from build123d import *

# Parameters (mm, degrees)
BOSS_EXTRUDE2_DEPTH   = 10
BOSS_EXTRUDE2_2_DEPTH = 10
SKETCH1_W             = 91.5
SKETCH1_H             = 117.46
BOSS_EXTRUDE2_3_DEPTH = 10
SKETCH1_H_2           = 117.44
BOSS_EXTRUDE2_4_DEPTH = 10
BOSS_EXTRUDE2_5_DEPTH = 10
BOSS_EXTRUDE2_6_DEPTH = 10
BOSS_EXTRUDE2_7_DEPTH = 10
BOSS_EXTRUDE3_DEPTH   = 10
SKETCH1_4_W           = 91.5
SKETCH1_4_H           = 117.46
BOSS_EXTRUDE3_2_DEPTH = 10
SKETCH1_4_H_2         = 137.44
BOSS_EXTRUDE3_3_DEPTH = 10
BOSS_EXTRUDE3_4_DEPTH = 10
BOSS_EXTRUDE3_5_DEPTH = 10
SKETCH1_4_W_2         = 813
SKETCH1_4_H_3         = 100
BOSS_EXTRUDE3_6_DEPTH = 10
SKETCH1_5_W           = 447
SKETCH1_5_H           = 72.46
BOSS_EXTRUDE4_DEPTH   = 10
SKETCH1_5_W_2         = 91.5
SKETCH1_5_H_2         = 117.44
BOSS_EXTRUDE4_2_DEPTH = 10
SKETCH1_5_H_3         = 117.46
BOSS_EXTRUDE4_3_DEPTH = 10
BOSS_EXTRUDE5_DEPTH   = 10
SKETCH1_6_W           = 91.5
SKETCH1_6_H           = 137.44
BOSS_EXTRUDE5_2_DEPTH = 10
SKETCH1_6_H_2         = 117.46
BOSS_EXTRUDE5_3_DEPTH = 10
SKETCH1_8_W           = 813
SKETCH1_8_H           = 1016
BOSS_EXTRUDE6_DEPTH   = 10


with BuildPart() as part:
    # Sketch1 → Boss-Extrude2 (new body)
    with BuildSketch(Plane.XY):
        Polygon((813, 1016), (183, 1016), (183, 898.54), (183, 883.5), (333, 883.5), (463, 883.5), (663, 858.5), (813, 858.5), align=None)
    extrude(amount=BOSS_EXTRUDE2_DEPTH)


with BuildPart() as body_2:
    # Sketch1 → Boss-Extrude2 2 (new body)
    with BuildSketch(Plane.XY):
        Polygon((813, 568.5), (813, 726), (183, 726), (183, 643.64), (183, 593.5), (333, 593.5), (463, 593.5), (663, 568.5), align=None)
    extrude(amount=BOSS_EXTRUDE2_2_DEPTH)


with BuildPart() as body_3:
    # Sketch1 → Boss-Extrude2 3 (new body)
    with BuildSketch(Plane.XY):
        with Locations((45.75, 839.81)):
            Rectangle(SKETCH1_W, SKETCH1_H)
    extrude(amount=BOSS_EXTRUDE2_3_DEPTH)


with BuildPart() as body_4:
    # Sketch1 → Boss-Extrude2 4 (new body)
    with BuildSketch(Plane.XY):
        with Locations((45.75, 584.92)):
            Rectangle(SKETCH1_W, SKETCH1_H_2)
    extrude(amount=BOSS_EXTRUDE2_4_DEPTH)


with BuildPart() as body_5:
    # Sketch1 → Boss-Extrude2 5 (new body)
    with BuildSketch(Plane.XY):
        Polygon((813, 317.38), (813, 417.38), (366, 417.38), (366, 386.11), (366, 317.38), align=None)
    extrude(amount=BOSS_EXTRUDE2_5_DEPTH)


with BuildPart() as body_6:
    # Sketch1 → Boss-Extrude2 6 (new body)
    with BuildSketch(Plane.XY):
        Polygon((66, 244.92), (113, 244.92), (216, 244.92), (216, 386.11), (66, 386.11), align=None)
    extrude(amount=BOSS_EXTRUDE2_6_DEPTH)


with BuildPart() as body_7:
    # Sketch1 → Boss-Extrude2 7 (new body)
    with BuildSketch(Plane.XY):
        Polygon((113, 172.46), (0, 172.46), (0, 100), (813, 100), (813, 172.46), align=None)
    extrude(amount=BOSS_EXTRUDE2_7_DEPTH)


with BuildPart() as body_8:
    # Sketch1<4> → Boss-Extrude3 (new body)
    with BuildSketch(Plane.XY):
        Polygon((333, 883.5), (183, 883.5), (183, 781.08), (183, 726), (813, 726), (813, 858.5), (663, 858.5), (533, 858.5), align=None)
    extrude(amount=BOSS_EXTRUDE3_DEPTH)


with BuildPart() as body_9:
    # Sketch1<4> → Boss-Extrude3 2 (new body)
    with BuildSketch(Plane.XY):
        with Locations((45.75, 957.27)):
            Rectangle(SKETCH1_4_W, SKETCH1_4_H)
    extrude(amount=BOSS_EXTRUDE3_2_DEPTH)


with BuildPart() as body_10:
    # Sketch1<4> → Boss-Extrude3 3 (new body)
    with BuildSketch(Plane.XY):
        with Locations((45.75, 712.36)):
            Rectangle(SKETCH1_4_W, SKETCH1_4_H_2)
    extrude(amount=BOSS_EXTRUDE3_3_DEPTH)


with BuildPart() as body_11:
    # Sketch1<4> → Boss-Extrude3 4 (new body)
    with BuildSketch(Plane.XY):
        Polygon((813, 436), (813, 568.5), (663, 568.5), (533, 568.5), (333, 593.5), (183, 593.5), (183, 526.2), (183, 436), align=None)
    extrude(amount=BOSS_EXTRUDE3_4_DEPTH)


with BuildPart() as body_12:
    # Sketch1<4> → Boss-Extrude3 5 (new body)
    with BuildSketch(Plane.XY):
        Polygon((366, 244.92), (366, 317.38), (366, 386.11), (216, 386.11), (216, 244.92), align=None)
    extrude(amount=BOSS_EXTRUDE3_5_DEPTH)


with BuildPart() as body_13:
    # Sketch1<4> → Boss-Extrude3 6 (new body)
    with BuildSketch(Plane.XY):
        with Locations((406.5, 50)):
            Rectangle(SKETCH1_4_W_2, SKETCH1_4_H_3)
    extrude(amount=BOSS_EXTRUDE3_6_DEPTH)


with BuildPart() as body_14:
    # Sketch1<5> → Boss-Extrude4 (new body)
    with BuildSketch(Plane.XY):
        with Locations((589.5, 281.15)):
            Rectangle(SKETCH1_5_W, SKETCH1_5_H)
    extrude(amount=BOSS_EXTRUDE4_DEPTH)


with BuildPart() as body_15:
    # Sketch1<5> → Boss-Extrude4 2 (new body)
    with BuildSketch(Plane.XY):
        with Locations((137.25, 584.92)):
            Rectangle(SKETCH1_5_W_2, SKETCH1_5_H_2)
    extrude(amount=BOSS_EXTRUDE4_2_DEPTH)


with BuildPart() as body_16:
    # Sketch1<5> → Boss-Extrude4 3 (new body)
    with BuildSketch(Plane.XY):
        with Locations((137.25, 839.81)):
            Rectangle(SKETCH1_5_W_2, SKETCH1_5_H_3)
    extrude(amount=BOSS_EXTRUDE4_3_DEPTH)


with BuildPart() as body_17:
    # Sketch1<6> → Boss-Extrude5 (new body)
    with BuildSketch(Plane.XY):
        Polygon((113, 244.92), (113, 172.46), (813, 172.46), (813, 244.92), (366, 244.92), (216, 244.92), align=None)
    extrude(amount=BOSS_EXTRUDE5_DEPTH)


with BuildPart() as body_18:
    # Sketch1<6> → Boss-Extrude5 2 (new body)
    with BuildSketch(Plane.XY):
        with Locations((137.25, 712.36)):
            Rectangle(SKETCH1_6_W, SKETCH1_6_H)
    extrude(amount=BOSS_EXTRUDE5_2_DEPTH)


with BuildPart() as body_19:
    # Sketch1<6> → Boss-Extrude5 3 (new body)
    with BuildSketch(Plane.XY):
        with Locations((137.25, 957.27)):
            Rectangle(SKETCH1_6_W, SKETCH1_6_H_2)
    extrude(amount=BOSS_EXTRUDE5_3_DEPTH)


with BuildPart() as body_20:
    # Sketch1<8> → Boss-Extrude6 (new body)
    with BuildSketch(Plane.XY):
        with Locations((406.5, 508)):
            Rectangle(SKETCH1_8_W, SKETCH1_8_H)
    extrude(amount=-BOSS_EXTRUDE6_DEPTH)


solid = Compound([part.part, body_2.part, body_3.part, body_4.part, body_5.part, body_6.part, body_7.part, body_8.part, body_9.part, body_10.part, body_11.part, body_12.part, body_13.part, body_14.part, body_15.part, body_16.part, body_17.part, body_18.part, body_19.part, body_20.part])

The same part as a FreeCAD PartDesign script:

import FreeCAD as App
import Part
import Sketcher

V = App.Vector
Q = App.Units.Quantity

doc = App.newDocument("Part")
params = doc.addObject("Spreadsheet::Sheet", "Params")
for row, (alias, value) in enumerate([
    ("sketch1_width", "630 mm"),
    ("sketch1_width2", "280 mm"),
    ("sketch1_width3", "150 mm"),
    ("sketch1_height", "132.5 mm"),
    ("sketch1_height2", "157.5 mm"),
    ("pad1_length", "10 mm"),
    ("sketch2_width", "630 mm"),
    ("sketch2_width2", "280 mm"),
    ("sketch2_width3", "150 mm"),
    ("sketch2_height", "157.5 mm"),
    ("sketch2_height2", "132.5 mm"),
    ("pad2_length", "10 mm"),
    ("sketch3_width", "91.5 mm"),
    ("sketch3_height", "117.46 mm"),
    ("pad3_length", "10 mm"),
    ("sketch4_width", "91.5 mm"),
    ("sketch4_height", "117.44 mm"),
    ("pad4_length", "10 mm"),
    ("sketch5_width", "447 mm"),
    ("sketch5_height", "100 mm"),
    ("pad5_length", "10 mm"),
    ("sketch6_width", "150 mm"),
    ("sketch6_height", "141.19 mm"),
    ("pad6_length", "10 mm"),
    ("sketch7_width", "813 mm"),
    ("sketch7_height", "72.46 mm"),
    ("pad7_length", "10 mm"),
    ("sketch8_width", "150 mm"),
    ("sketch8_width2", "630 mm"),
    ("sketch8_width3", "280 mm"),
    ("sketch8_height", "157.5 mm"),
    ("sketch8_height2", "132.5 mm"),
    ("pad8_length", "10 mm"),
    ("sketch9_width", "91.5 mm"),
    ("sketch9_height", "117.46 mm"),
    ("pad9_length", "10 mm"),
    ("sketch10_width", "91.5 mm"),
    ("sketch10_height", "137.44 mm"),
    ("pad10_length", "10 mm"),
    ("sketch11_width", "280 mm"),
    ("sketch11_width2", "150 mm"),
    ("sketch11_width3", "630 mm"),
    ("sketch11_height", "132.5 mm"),
    ("sketch11_height2", "157.5 mm"),
    ("pad11_length", "10 mm"),
    ("sketch12_width", "150 mm"),
    ("sketch12_height", "141.19 mm"),
    ("pad12_length", "10 mm"),
    ("sketch13_width", "813 mm"),
    ("sketch13_height", "100 mm"),
    ("pad13_length", "10 mm"),
    ("sketch14_width", "447 mm"),
    ("sketch14_height", "72.46 mm"),
    ("pad14_length", "10 mm"),
    ("sketch15_width", "91.5 mm"),
    ("sketch15_height", "117.44 mm"),
    ("pad15_length", "10 mm"),
    ("sketch16_width", "91.5 mm"),
    ("sketch16_height", "117.46 mm"),
    ("pad16_length", "10 mm"),
    ("sketch17_width", "700 mm"),
    ("sketch17_height", "72.46 mm"),
    ("pad17_length", "10 mm"),
    ("sketch18_width", "91.5 mm"),
    ("sketch18_height", "137.44 mm"),
    ("pad18_length", "10 mm"),
    ("sketch19_width", "91.5 mm"),
    ("sketch19_height", "117.46 mm"),
    ("pad19_length", "10 mm"),
    ("sketch20_width", "813 mm"),
    ("sketch20_height", "1016 mm"),
    ("pad20_length", "10 mm"),
], start=1):
    params.set(f"A{row}", alias)
    params.set(f"B{row}", "=" + value)
    params.setAlias(f"B{row}", alias)

body = doc.addObject("PartDesign::Body", "Body")

sketch1 = doc.addObject("Sketcher::SketchObject", "Sketch")
body.addObject(sketch1)
sketch1.AttachmentSupport = (doc.XY_Plane, [""])
sketch1.MapMode = "FlatFace"
sketch1.addGeometry(Part.LineSegment(V(813, 1016, 0), V(183, 1016, 0)), False)
sketch1.addGeometry(Part.LineSegment(V(183, 1016, 0), V(183, 884, 0)), False)
sketch1.addGeometry(Part.LineSegment(V(183, 884, 0), V(463, 884, 0)), False)
sketch1.addGeometry(Part.LineSegment(V(463, 884, 0), V(663, 858, 0)), False)
sketch1.addGeometry(Part.LineSegment(V(663, 858, 0), V(813, 858, 0)), False)
sketch1.addGeometry(Part.LineSegment(V(813, 858, 0), V(813, 1016, 0)), False)
sketch1.addConstraint(Sketcher.Constraint("Coincident", 0, 2, 1, 1))
sketch1.addConstraint(Sketcher.Constraint("Coincident", 1, 2, 2, 1))
sketch1.addConstraint(Sketcher.Constraint("Coincident", 2, 2, 3, 1))
sketch1.addConstraint(Sketcher.Constraint("Coincident", 3, 2, 4, 1))
sketch1.addConstraint(Sketcher.Constraint("Coincident", 4, 2, 5, 1))
sketch1.addConstraint(Sketcher.Constraint("Coincident", 5, 2, 0, 1))
sketch1.addConstraint(Sketcher.Constraint("Horizontal", 0))
sketch1.addConstraint(Sketcher.Constraint("Vertical", 1))
sketch1.addConstraint(Sketcher.Constraint("Horizontal", 2))
sketch1.addConstraint(Sketcher.Constraint("Horizontal", 4))
sketch1.addConstraint(Sketcher.Constraint("Vertical", 5))
sketch1.addConstraint(Sketcher.Constraint("DistanceX", 0, 2, 0, 1, Q("630 mm")))
sketch1.addConstraint(Sketcher.Constraint("DistanceX", 2, 1, 2, 2, Q("280 mm")))
sketch1.addConstraint(Sketcher.Constraint("DistanceX", 4, 1, 4, 2, Q("150 mm")))
sketch1.addConstraint(Sketcher.Constraint("DistanceY", 1, 2, 1, 1, Q("132.5 mm")))
sketch1.addConstraint(Sketcher.Constraint("DistanceY", 5, 1, 5, 2, Q("157.5 mm")))
sketch1.addConstraint(Sketcher.Constraint("DistanceX", -1, 1, 0, 2, Q("183 mm")))
sketch1.addConstraint(Sketcher.Constraint("DistanceY", -1, 1, 0, 2, Q("1016 mm")))
sketch1.setExpression("Constraints[11]", "Params.sketch1_width")
sketch1.setExpression("Constraints[12]", "Params.sketch1_width2")
sketch1.setExpression("Constraints[13]", "Params.sketch1_width3")
sketch1.setExpression("Constraints[14]", "Params.sketch1_height")
sketch1.setExpression("Constraints[15]", "Params.sketch1_height2")
pad1 = doc.addObject("PartDesign::Pad", "Pad")
body.addObject(pad1)
pad1.Profile = sketch1
pad1.setExpression("Length", "Params.pad1_length")
body2 = doc.addObject("PartDesign::Body", "Body001")

sketch2 = doc.addObject("Sketcher::SketchObject", "Sketch001")
body2.addObject(sketch2)
sketch2.AttachmentSupport = (doc.getObject("XY_Plane001"), [""])
sketch2.MapMode = "FlatFace"
sketch2.addGeometry(Part.LineSegment(V(813, 568, 0), V(813, 726, 0)), False)
sketch2.addGeometry(Part.LineSegment(V(813, 726, 0), V(183, 726, 0)), False)
sketch2.addGeometry(Part.LineSegment(V(183, 726, 0), V(183, 594, 0)), False)
sketch2.addGeometry(Part.LineSegment(V(183, 594, 0), V(463, 594, 0)), False)
sketch2.addGeometry(Part.LineSegment(V(463, 594, 0), V(663, 568, 0)), False)
sketch2.addGeometry(Part.LineSegment(V(663, 568, 0), V(813, 568, 0)), False)
sketch2.addConstraint(Sketcher.Constraint("Coincident", 0, 2, 1, 1))
sketch2.addConstraint(Sketcher.Constraint("Coincident", 1, 2, 2, 1))
sketch2.addConstraint(Sketcher.Constraint("Coincident", 2, 2, 3, 1))
sketch2.addConstraint(Sketcher.Constraint("Coincident", 3, 2, 4, 1))
sketch2.addConstraint(Sketcher.Constraint("Coincident", 4, 2, 5, 1))
sketch2.addConstraint(Sketcher.Constraint("Coincident", 5, 2, 0, 1))
sketch2.addConstraint(Sketcher.Constraint("Vertical", 0))
sketch2.addConstraint(Sketcher.Constraint("Horizontal", 1))
sketch2.addConstraint(Sketcher.Constraint("Vertical", 2))
sketch2.addConstraint(Sketcher.Constraint("Horizontal", 3))
sketch2.addConstraint(Sketcher.Constraint("Horizontal", 5))
sketch2.addConstraint(Sketcher.Constraint("DistanceX", 1, 2, 1, 1, Q("630 mm")))
sketch2.addConstraint(Sketcher.Constraint("DistanceX", 3, 1, 3, 2, Q("280 mm")))
sketch2.addConstraint(Sketcher.Constraint("DistanceX", 5, 1, 5, 2, Q("150 mm")))
sketch2.addConstraint(Sketcher.Constraint("DistanceY", 0, 1, 0, 2, Q("157.5 mm")))
sketch2.addConstraint(Sketcher.Constraint("DistanceY", 2, 2, 2, 1, Q("132.5 mm")))
sketch2.addConstraint(Sketcher.Constraint("DistanceX", -1, 1, 0, 2, Q("813 mm")))
sketch2.addConstraint(Sketcher.Constraint("DistanceY", -1, 1, 0, 2, Q("726 mm")))
sketch2.setExpression("Constraints[11]", "Params.sketch2_width")
sketch2.setExpression("Constraints[12]", "Params.sketch2_width2")
sketch2.setExpression("Constraints[13]", "Params.sketch2_width3")
sketch2.setExpression("Constraints[14]", "Params.sketch2_height")
sketch2.setExpression("Constraints[15]", "Params.sketch2_height2")
pad2 = doc.addObject("PartDesign::Pad", "Pad001")
body2.addObject(pad2)
pad2.Profile = sketch2
pad2.setExpression("Length", "Params.pad2_length")
body3 = doc.addObject("PartDesign::Body", "Body002")

sketch3 = doc.addObject("Sketcher::SketchObject", "Sketch002")
body3.addObject(sketch3)
sketch3.AttachmentSupport = (doc.getObject("XY_Plane002"), [""])
sketch3.MapMode = "FlatFace"
sketch3.addGeometry(Part.LineSegment(V(0, 899, 0), V(0, 781, 0)), False)
sketch3.addGeometry(Part.LineSegment(V(0, 781, 0), V(92, 781, 0)), False)
sketch3.addGeometry(Part.LineSegment(V(92, 781, 0), V(92, 899, 0)), False)
sketch3.addGeometry(Part.LineSegment(V(92, 899, 0), V(0, 899, 0)), False)
sketch3.addConstraint(Sketcher.Constraint("Coincident", 0, 2, 1, 1))
sketch3.addConstraint(Sketcher.Constraint("Coincident", 1, 2, 2, 1))
sketch3.addConstraint(Sketcher.Constraint("Coincident", 2, 2, 3, 1))
sketch3.addConstraint(Sketcher.Constraint("Coincident", 3, 2, 0, 1))
sketch3.addConstraint(Sketcher.Constraint("Vertical", 0))
sketch3.addConstraint(Sketcher.Constraint("Horizontal", 1))
sketch3.addConstraint(Sketcher.Constraint("Vertical", 2))
sketch3.addConstraint(Sketcher.Constraint("Horizontal", 3))
sketch3.addConstraint(Sketcher.Constraint("PointOnObject", 0, 2, -2))
sketch3.addConstraint(Sketcher.Constraint("DistanceX", 1, 1, 1, 2, Q("91.5 mm")))
sketch3.addConstraint(Sketcher.Constraint("DistanceY", 0, 2, 0, 1, Q("117.46 mm")))
sketch3.addConstraint(Sketcher.Constraint("DistanceY", -1, 1, 0, 2, Q("781.08 mm")))
sketch3.setExpression("Constraints[9]", "Params.sketch3_width")
sketch3.setExpression("Constraints[10]", "Params.sketch3_height")
pad3 = doc.addObject("PartDesign::Pad", "Pad002")
body3.addObject(pad3)
pad3.Profile = sketch3
pad3.setExpression("Length", "Params.pad3_length")
body4 = doc.addObject("PartDesign::Body", "Body003")

sketch4 = doc.addObject("Sketcher::SketchObject", "Sketch003")
body4.addObject(sketch4)
sketch4.AttachmentSupport = (doc.getObject("XY_Plane003"), [""])
sketch4.MapMode = "FlatFace"
sketch4.addGeometry(Part.LineSegment(V(0, 644, 0), V(0, 526, 0)), False)
sketch4.addGeometry(Part.LineSegment(V(0, 526, 0), V(92, 526, 0)), False)
sketch4.addGeometry(Part.LineSegment(V(92, 526, 0), V(92, 644, 0)), False)
sketch4.addGeometry(Part.LineSegment(V(92, 644, 0), V(0, 644, 0)), False)
sketch4.addConstraint(Sketcher.Constraint("Coincident", 0, 2, 1, 1))
sketch4.addConstraint(Sketcher.Constraint("Coincident", 1, 2, 2, 1))
sketch4.addConstraint(Sketcher.Constraint("Coincident", 2, 2, 3, 1))
sketch4.addConstraint(Sketcher.Constraint("Coincident", 3, 2, 0, 1))
sketch4.addConstraint(Sketcher.Constraint("Vertical", 0))
sketch4.addConstraint(Sketcher.Constraint("Horizontal", 1))
sketch4.addConstraint(Sketcher.Constraint("Vertical", 2))
sketch4.addConstraint(Sketcher.Constraint("Horizontal", 3))
sketch4.addConstraint(Sketcher.Constraint("PointOnObject", 0, 2, -2))
sketch4.addConstraint(Sketcher.Constraint("DistanceX", 1, 1, 1, 2, Q("91.5 mm")))
sketch4.addConstraint(Sketcher.Constraint("DistanceY", 0, 2, 0, 1, Q("117.44 mm")))
sketch4.addConstraint(Sketcher.Constraint("DistanceY", -1, 1, 0, 2, Q("526.2 mm")))
sketch4.setExpression("Constraints[9]", "Params.sketch4_width")
sketch4.setExpression("Constraints[10]", "Params.sketch4_height")
pad4 = doc.addObject("PartDesign::Pad", "Pad003")
body4.addObject(pad4)
pad4.Profile = sketch4
pad4.setExpression("Length", "Params.pad4_length")
body5 = doc.addObject("PartDesign::Body", "Body004")

sketch5 = doc.addObject("Sketcher::SketchObject", "Sketch004")
body5.addObject(sketch5)
sketch5.AttachmentSupport = (doc.getObject("XY_Plane004"), [""])
sketch5.MapMode = "FlatFace"
sketch5.addGeometry(Part.LineSegment(V(813, 317, 0), V(813, 417, 0)), False)
sketch5.addGeometry(Part.LineSegment(V(813, 417, 0), V(366, 417, 0)), False)
sketch5.addGeometry(Part.LineSegment(V(366, 417, 0), V(366, 317, 0)), False)
sketch5.addGeometry(Part.LineSegment(V(366, 317, 0), V(813, 317, 0)), False)
sketch5.addConstraint(Sketcher.Constraint("Coincident", 0, 2, 1, 1))
sketch5.addConstraint(Sketcher.Constraint("Coincident", 1, 2, 2, 1))
sketch5.addConstraint(Sketcher.Constraint("Coincident", 2, 2, 3, 1))
sketch5.addConstraint(Sketcher.Constraint("Coincident", 3, 2, 0, 1))
sketch5.addConstraint(Sketcher.Constraint("Vertical", 0))
sketch5.addConstraint(Sketcher.Constraint("Horizontal", 1))
sketch5.addConstraint(Sketcher.Constraint("Vertical", 2))
sketch5.addConstraint(Sketcher.Constraint("Horizontal", 3))
sketch5.addConstraint(Sketcher.Constraint("DistanceX", 1, 2, 1, 1, Q("447 mm")))
sketch5.addConstraint(Sketcher.Constraint("DistanceY", 0, 1, 0, 2, Q("100 mm")))
sketch5.addConstraint(Sketcher.Constraint("DistanceX", -1, 1, 0, 2, Q("813 mm")))
sketch5.addConstraint(Sketcher.Constraint("DistanceY", -1, 1, 0, 2, Q("417.38 mm")))
sketch5.setExpression("Constraints[8]", "Params.sketch5_width")
sketch5.setExpression("Constraints[9]", "Params.sketch5_height")
pad5 = doc.addObject("PartDesign::Pad", "Pad004")
body5.addObject(pad5)
pad5.Profile = sketch5
pad5.setExpression("Length", "Params.pad5_length")
body6 = doc.addObject("PartDesign::Body", "Body005")

sketch6 = doc.addObject("Sketcher::SketchObject", "Sketch005")
body6.addObject(sketch6)
sketch6.AttachmentSupport = (doc.getObject("XY_Plane005"), [""])
sketch6.MapMode = "FlatFace"
sketch6.addGeometry(Part.LineSegment(V(66, 245, 0), V(216, 245, 0)), False)
sketch6.addGeometry(Part.LineSegment(V(216, 245, 0), V(216, 386, 0)), False)
sketch6.addGeometry(Part.LineSegment(V(216, 386, 0), V(66, 386, 0)), False)
sketch6.addGeometry(Part.LineSegment(V(66, 386, 0), V(66, 245, 0)), False)
sketch6.addConstraint(Sketcher.Constraint("Coincident", 0, 2, 1, 1))
sketch6.addConstraint(Sketcher.Constraint("Coincident", 1, 2, 2, 1))
sketch6.addConstraint(Sketcher.Constraint("Coincident", 2, 2, 3, 1))
sketch6.addConstraint(Sketcher.Constraint("Coincident", 3, 2, 0, 1))
sketch6.addConstraint(Sketcher.Constraint("Horizontal", 0))
sketch6.addConstraint(Sketcher.Constraint("Vertical", 1))
sketch6.addConstraint(Sketcher.Constraint("Horizontal", 2))
sketch6.addConstraint(Sketcher.Constraint("Vertical", 3))
sketch6.addConstraint(Sketcher.Constraint("DistanceX", 0, 1, 0, 2, Q("150 mm")))
sketch6.addConstraint(Sketcher.Constraint("DistanceX", -1, 1, 0, 2, Q("216 mm")))
sketch6.addConstraint(Sketcher.Constraint("DistanceY", 1, 1, 1, 2, Q("141.19 mm")))
sketch6.addConstraint(Sketcher.Constraint("DistanceY", -1, 1, 0, 2, Q("244.92 mm")))
sketch6.setExpression("Constraints[8]", "Params.sketch6_width")
sketch6.setExpression("Constraints[10]", "Params.sketch6_height")
pad6 = doc.addObject("PartDesign::Pad", "Pad005")
body6.addObject(pad6)
pad6.Profile = sketch6
pad6.setExpression("Length", "Params.pad6_length")
body7 = doc.addObject("PartDesign::Body", "Body006")

sketch7 = doc.addObject("Sketcher::SketchObject", "Sketch006")
body7.addObject(sketch7)
sketch7.AttachmentSupport = (doc.getObject("XY_Plane006"), [""])
sketch7.MapMode = "FlatFace"
sketch7.addGeometry(Part.LineSegment(V(0, 172, 0), V(0, 100, 0)), False)
sketch7.addGeometry(Part.LineSegment(V(0, 100, 0), V(813, 100, 0)), False)
sketch7.addGeometry(Part.LineSegment(V(813, 100, 0), V(813, 172, 0)), False)
sketch7.addGeometry(Part.LineSegment(V(813, 172, 0), V(0, 172, 0)), False)
sketch7.addConstraint(Sketcher.Constraint("Coincident", 0, 2, 1, 1))
sketch7.addConstraint(Sketcher.Constraint("Coincident", 1, 2, 2, 1))
sketch7.addConstraint(Sketcher.Constraint("Coincident", 2, 2, 3, 1))
sketch7.addConstraint(Sketcher.Constraint("Coincident", 3, 2, 0, 1))
sketch7.addConstraint(Sketcher.Constraint("Vertical", 0))
sketch7.addConstraint(Sketcher.Constraint("Horizontal", 1))
sketch7.addConstraint(Sketcher.Constraint("Vertical", 2))
sketch7.addConstraint(Sketcher.Constraint("Horizontal", 3))
sketch7.addConstraint(Sketcher.Constraint("PointOnObject", 0, 2, -2))
sketch7.addConstraint(Sketcher.Constraint("DistanceX", 1, 1, 1, 2, Q("813 mm")))
sketch7.addConstraint(Sketcher.Constraint("DistanceY", -1, 1, 0, 2, Q("100 mm")))
sketch7.addConstraint(Sketcher.Constraint("DistanceY", 0, 2, 0, 1, Q("72.46 mm")))
sketch7.setExpression("Constraints[9]", "Params.sketch7_width")
sketch7.setExpression("Constraints[11]", "Params.sketch7_height")
pad7 = doc.addObject("PartDesign::Pad", "Pad006")
body7.addObject(pad7)
pad7.Profile = sketch7
pad7.setExpression("Length", "Params.pad7_length")
body8 = doc.addObject("PartDesign::Body", "Body007")

sketch8 = doc.addObject("Sketcher::SketchObject", "Sketch007")
body8.addObject(sketch8)
sketch8.AttachmentSupport = (doc.getObject("XY_Plane007"), [""])
sketch8.MapMode = "FlatFace"
sketch8.addGeometry(Part.LineSegment(V(333, 884, 0), V(183, 884, 0)), False)
sketch8.addGeometry(Part.LineSegment(V(183, 884, 0), V(183, 726, 0)), False)
sketch8.addGeometry(Part.LineSegment(V(183, 726, 0), V(813, 726, 0)), False)
sketch8.addGeometry(Part.LineSegment(V(813, 726, 0), V(813, 858, 0)), False)
sketch8.addGeometry(Part.LineSegment(V(813, 858, 0), V(533, 858, 0)), False)
sketch8.addGeometry(Part.LineSegment(V(533, 858, 0), V(333, 884, 0)), False)
sketch8.addConstraint(Sketcher.Constraint("Coincident", 0, 2, 1, 1))
sketch8.addConstraint(Sketcher.Constraint("Coincident", 1, 2, 2, 1))
sketch8.addConstraint(Sketcher.Constraint("Coincident", 2, 2, 3, 1))
sketch8.addConstraint(Sketcher.Constraint("Coincident", 3, 2, 4, 1))
sketch8.addConstraint(Sketcher.Constraint("Coincident", 4, 2, 5, 1))
sketch8.addConstraint(Sketcher.Constraint("Coincident", 5, 2, 0, 1))
sketch8.addConstraint(Sketcher.Constraint("Horizontal", 0))
sketch8.addConstraint(Sketcher.Constraint("Vertical", 1))
sketch8.addConstraint(Sketcher.Constraint("Horizontal", 2))
sketch8.addConstraint(Sketcher.Constraint("Vertical", 3))
sketch8.addConstraint(Sketcher.Constraint("Horizontal", 4))
sketch8.addConstraint(Sketcher.Constraint("DistanceX", 0, 2, 0, 1, Q("150 mm")))
sketch8.addConstraint(Sketcher.Constraint("DistanceX", 2, 1, 2, 2, Q("630 mm")))
sketch8.addConstraint(Sketcher.Constraint("DistanceX", 4, 2, 4, 1, Q("280 mm")))
sketch8.addConstraint(Sketcher.Constraint("DistanceY", 1, 2, 1, 1, Q("157.5 mm")))
sketch8.addConstraint(Sketcher.Constraint("DistanceY", 3, 1, 3, 2, Q("132.5 mm")))
sketch8.addConstraint(Sketcher.Constraint("DistanceX", -1, 1, 0, 2, Q("183 mm")))
sketch8.addConstraint(Sketcher.Constraint("DistanceY", -1, 1, 1, 2, Q("726 mm")))
sketch8.setExpression("Constraints[11]", "Params.sketch8_width")
sketch8.setExpression("Constraints[12]", "Params.sketch8_width2")
sketch8.setExpression("Constraints[13]", "Params.sketch8_width3")
sketch8.setExpression("Constraints[14]", "Params.sketch8_height")
sketch8.setExpression("Constraints[15]", "Params.sketch8_height2")
pad8 = doc.addObject("PartDesign::Pad", "Pad007")
body8.addObject(pad8)
pad8.Profile = sketch8
pad8.setExpression("Length", "Params.pad8_length")
body9 = doc.addObject("PartDesign::Body", "Body008")

sketch9 = doc.addObject("Sketcher::SketchObject", "Sketch008")
body9.addObject(sketch9)
sketch9.AttachmentSupport = (doc.getObject("XY_Plane008"), [""])
sketch9.MapMode = "FlatFace"
sketch9.addGeometry(Part.LineSegment(V(0, 1016, 0), V(0, 899, 0)), False)
sketch9.addGeometry(Part.LineSegment(V(0, 899, 0), V(92, 899, 0)), False)
sketch9.addGeometry(Part.LineSegment(V(92, 899, 0), V(92, 1016, 0)), False)
sketch9.addGeometry(Part.LineSegment(V(92, 1016, 0), V(0, 1016, 0)), False)
sketch9.addConstraint(Sketcher.Constraint("Coincident", 0, 2, 1, 1))
sketch9.addConstraint(Sketcher.Constraint("Coincident", 1, 2, 2, 1))
sketch9.addConstraint(Sketcher.Constraint("Coincident", 2, 2, 3, 1))
sketch9.addConstraint(Sketcher.Constraint("Coincident", 3, 2, 0, 1))
sketch9.addConstraint(Sketcher.Constraint("Vertical", 0))
sketch9.addConstraint(Sketcher.Constraint("Horizontal", 1))
sketch9.addConstraint(Sketcher.Constraint("Vertical", 2))
sketch9.addConstraint(Sketcher.Constraint("Horizontal", 3))
sketch9.addConstraint(Sketcher.Constraint("PointOnObject", 0, 2, -2))
sketch9.addConstraint(Sketcher.Constraint("DistanceX", 1, 1, 1, 2, Q("91.5 mm")))
sketch9.addConstraint(Sketcher.Constraint("DistanceY", -1, 1, 2, 2, Q("1016 mm")))
sketch9.addConstraint(Sketcher.Constraint("DistanceY", 0, 2, 0, 1, Q("117.46 mm")))
sketch9.setExpression("Constraints[9]", "Params.sketch9_width")
sketch9.setExpression("Constraints[11]", "Params.sketch9_height")
pad9 = doc.addObject("PartDesign::Pad", "Pad008")
body9.addObject(pad9)
pad9.Profile = sketch9
pad9.setExpression("Length", "Params.pad9_length")
body10 = doc.addObject("PartDesign::Body", "Body009")

sketch10 = doc.addObject("Sketcher::SketchObject", "Sketch009")
body10.addObject(sketch10)
sketch10.AttachmentSupport = (doc.getObject("XY_Plane009"), [""])
sketch10.MapMode = "FlatFace"
sketch10.addGeometry(Part.LineSegment(V(0, 781, 0), V(0, 644, 0)), False)
sketch10.addGeometry(Part.LineSegment(V(0, 644, 0), V(92, 644, 0)), False)
sketch10.addGeometry(Part.LineSegment(V(92, 644, 0), V(92, 781, 0)), False)
sketch10.addGeometry(Part.LineSegment(V(92, 781, 0), V(0, 781, 0)), False)
sketch10.addConstraint(Sketcher.Constraint("Coincident", 0, 2, 1, 1))
sketch10.addConstraint(Sketcher.Constraint("Coincident", 1, 2, 2, 1))
sketch10.addConstraint(Sketcher.Constraint("Coincident", 2, 2, 3, 1))
sketch10.addConstraint(Sketcher.Constraint("Coincident", 3, 2, 0, 1))
sketch10.addConstraint(Sketcher.Constraint("Vertical", 0))
sketch10.addConstraint(Sketcher.Constraint("Horizontal", 1))
sketch10.addConstraint(Sketcher.Constraint("Vertical", 2))
sketch10.addConstraint(Sketcher.Constraint("Horizontal", 3))
sketch10.addConstraint(Sketcher.Constraint("PointOnObject", 0, 2, -2))
sketch10.addConstraint(Sketcher.Constraint("DistanceX", 1, 1, 1, 2, Q("91.5 mm")))
sketch10.addConstraint(Sketcher.Constraint("DistanceY", 0, 2, 0, 1, Q("137.44 mm")))
sketch10.addConstraint(Sketcher.Constraint("DistanceY", -1, 1, 0, 2, Q("643.64 mm")))
sketch10.setExpression("Constraints[9]", "Params.sketch10_width")
sketch10.setExpression("Constraints[10]", "Params.sketch10_height")
pad10 = doc.addObject("PartDesign::Pad", "Pad009")
body10.addObject(pad10)
pad10.Profile = sketch10
pad10.setExpression("Length", "Params.pad10_length")
body11 = doc.addObject("PartDesign::Body", "Body010")

sketch11 = doc.addObject("Sketcher::SketchObject", "Sketch010")
body11.addObject(sketch11)
sketch11.AttachmentSupport = (doc.getObject("XY_Plane010"), [""])
sketch11.MapMode = "FlatFace"
sketch11.addGeometry(Part.LineSegment(V(813, 436, 0), V(813, 568, 0)), False)
sketch11.addGeometry(Part.LineSegment(V(813, 568, 0), V(533, 568, 0)), False)
sketch11.addGeometry(Part.LineSegment(V(533, 568, 0), V(333, 594, 0)), False)
sketch11.addGeometry(Part.LineSegment(V(333, 594, 0), V(183, 594, 0)), False)
sketch11.addGeometry(Part.LineSegment(V(183, 594, 0), V(183, 436, 0)), False)
sketch11.addGeometry(Part.LineSegment(V(183, 436, 0), V(813, 436, 0)), False)
sketch11.addConstraint(Sketcher.Constraint("Coincident", 0, 2, 1, 1))
sketch11.addConstraint(Sketcher.Constraint("Coincident", 1, 2, 2, 1))
sketch11.addConstraint(Sketcher.Constraint("Coincident", 2, 2, 3, 1))
sketch11.addConstraint(Sketcher.Constraint("Coincident", 3, 2, 4, 1))
sketch11.addConstraint(Sketcher.Constraint("Coincident", 4, 2, 5, 1))
sketch11.addConstraint(Sketcher.Constraint("Coincident", 5, 2, 0, 1))
sketch11.addConstraint(Sketcher.Constraint("Vertical", 0))
sketch11.addConstraint(Sketcher.Constraint("Horizontal", 1))
sketch11.addConstraint(Sketcher.Constraint("Horizontal", 3))
sketch11.addConstraint(Sketcher.Constraint("Vertical", 4))
sketch11.addConstraint(Sketcher.Constraint("Horizontal", 5))
sketch11.addConstraint(Sketcher.Constraint("DistanceX", 1, 2, 1, 1, Q("280 mm")))
sketch11.addConstraint(Sketcher.Constraint("DistanceX", 3, 2, 3, 1, Q("150 mm")))
sketch11.addConstraint(Sketcher.Constraint("DistanceX", 5, 1, 5, 2, Q("630 mm")))
sketch11.addConstraint(Sketcher.Constraint("DistanceY", 0, 1, 0, 2, Q("132.5 mm")))
sketch11.addConstraint(Sketcher.Constraint("DistanceY", 4, 2, 4, 1, Q("157.5 mm")))
sketch11.addConstraint(Sketcher.Constraint("DistanceX", -1, 1, 0, 2, Q("813 mm")))
sketch11.addConstraint(Sketcher.Constraint("DistanceY", -1, 1, 4, 2, Q("436 mm")))
sketch11.setExpression("Constraints[11]", "Params.sketch11_width")
sketch11.setExpression("Constraints[12]", "Params.sketch11_width2")
sketch11.setExpression("Constraints[13]", "Params.sketch11_width3")
sketch11.setExpression("Constraints[14]", "Params.sketch11_height")
sketch11.setExpression("Constraints[15]", "Params.sketch11_height2")
pad11 = doc.addObject("PartDesign::Pad", "Pad010")
body11.addObject(pad11)
pad11.Profile = sketch11
pad11.setExpression("Length", "Params.pad11_length")
body12 = doc.addObject("PartDesign::Body", "Body011")

sketch12 = doc.addObject("Sketcher::SketchObject", "Sketch011")
body12.addObject(sketch12)
sketch12.AttachmentSupport = (doc.getObject("XY_Plane011"), [""])
sketch12.MapMode = "FlatFace"
sketch12.addGeometry(Part.LineSegment(V(366, 245, 0), V(366, 386, 0)), False)
sketch12.addGeometry(Part.LineSegment(V(366, 386, 0), V(216, 386, 0)), False)
sketch12.addGeometry(Part.LineSegment(V(216, 386, 0), V(216, 245, 0)), False)
sketch12.addGeometry(Part.LineSegment(V(216, 245, 0), V(366, 245, 0)), False)
sketch12.addConstraint(Sketcher.Constraint("Coincident", 0, 2, 1, 1))
sketch12.addConstraint(Sketcher.Constraint("Coincident", 1, 2, 2, 1))
sketch12.addConstraint(Sketcher.Constraint("Coincident", 2, 2, 3, 1))
sketch12.addConstraint(Sketcher.Constraint("Coincident", 3, 2, 0, 1))
sketch12.addConstraint(Sketcher.Constraint("Vertical", 0))
sketch12.addConstraint(Sketcher.Constraint("Horizontal", 1))
sketch12.addConstraint(Sketcher.Constraint("Vertical", 2))
sketch12.addConstraint(Sketcher.Constraint("Horizontal", 3))
sketch12.addConstraint(Sketcher.Constraint("DistanceX", 1, 2, 1, 1, Q("150 mm")))
sketch12.addConstraint(Sketcher.Constraint("DistanceX", -1, 1, 0, 2, Q("366 mm")))
sketch12.addConstraint(Sketcher.Constraint("DistanceY", 0, 1, 0, 2, Q("141.19 mm")))
sketch12.addConstraint(Sketcher.Constraint("DistanceY", -1, 1, 0, 2, Q("386.11 mm")))
sketch12.setExpression("Constraints[8]", "Params.sketch12_width")
sketch12.setExpression("Constraints[10]", "Params.sketch12_height")
pad12 = doc.addObject("PartDesign::Pad", "Pad011")
body12.addObject(pad12)
pad12.Profile = sketch12
pad12.setExpression("Length", "Params.pad12_length")
body13 = doc.addObject("PartDesign::Body", "Body012")

sketch13 = doc.addObject("Sketcher::SketchObject", "Sketch012")
body13.addObject(sketch13)
sketch13.AttachmentSupport = (doc.getObject("XY_Plane012"), [""])
sketch13.MapMode = "FlatFace"
sketch13.addGeometry(Part.LineSegment(V(0, 100, 0), V(0, 0, 0)), False)
sketch13.addGeometry(Part.LineSegment(V(0, 0, 0), V(813, 0, 0)), False)
sketch13.addGeometry(Part.LineSegment(V(813, 0, 0), V(813, 100, 0)), False)
sketch13.addGeometry(Part.LineSegment(V(813, 100, 0), V(0, 100, 0)), False)
sketch13.addConstraint(Sketcher.Constraint("Coincident", 0, 2, 1, 1))
sketch13.addConstraint(Sketcher.Constraint("Coincident", 1, 2, 2, 1))
sketch13.addConstraint(Sketcher.Constraint("Coincident", 2, 2, 3, 1))
sketch13.addConstraint(Sketcher.Constraint("Coincident", 3, 2, 0, 1))
sketch13.addConstraint(Sketcher.Constraint("Vertical", 0))
sketch13.addConstraint(Sketcher.Constraint("Horizontal", 1))
sketch13.addConstraint(Sketcher.Constraint("Vertical", 2))
sketch13.addConstraint(Sketcher.Constraint("Horizontal", 3))
sketch13.addConstraint(Sketcher.Constraint("Coincident", 0, 2, -1, 1))
sketch13.addConstraint(Sketcher.Constraint("DistanceX", 1, 1, 1, 2, Q("813 mm")))
sketch13.addConstraint(Sketcher.Constraint("DistanceY", 0, 2, 0, 1, Q("100 mm")))
sketch13.setExpression("Constraints[9]", "Params.sketch13_width")
sketch13.setExpression("Constraints[10]", "Params.sketch13_height")
pad13 = doc.addObject("PartDesign::Pad", "Pad012")
body13.addObject(pad13)
pad13.Profile = sketch13
pad13.setExpression("Length", "Params.pad13_length")
body14 = doc.addObject("PartDesign::Body", "Body013")

sketch14 = doc.addObject("Sketcher::SketchObject", "Sketch013")
body14.addObject(sketch14)
sketch14.AttachmentSupport = (doc.getObject("XY_Plane013"), [""])
sketch14.MapMode = "FlatFace"
sketch14.addGeometry(Part.LineSegment(V(366, 317, 0), V(366, 245, 0)), False)
sketch14.addGeometry(Part.LineSegment(V(366, 245, 0), V(813, 245, 0)), False)
sketch14.addGeometry(Part.LineSegment(V(813, 245, 0), V(813, 317, 0)), False)
sketch14.addGeometry(Part.LineSegment(V(813, 317, 0), V(366, 317, 0)), False)
sketch14.addConstraint(Sketcher.Constraint("Coincident", 0, 2, 1, 1))
sketch14.addConstraint(Sketcher.Constraint("Coincident", 1, 2, 2, 1))
sketch14.addConstraint(Sketcher.Constraint("Coincident", 2, 2, 3, 1))
sketch14.addConstraint(Sketcher.Constraint("Coincident", 3, 2, 0, 1))
sketch14.addConstraint(Sketcher.Constraint("Vertical", 0))
sketch14.addConstraint(Sketcher.Constraint("Horizontal", 1))
sketch14.addConstraint(Sketcher.Constraint("Vertical", 2))
sketch14.addConstraint(Sketcher.Constraint("Horizontal", 3))
sketch14.addConstraint(Sketcher.Constraint("DistanceX", 1, 1, 1, 2, Q("447 mm")))
sketch14.addConstraint(Sketcher.Constraint("DistanceX", -1, 1, 0, 2, Q("366 mm")))
sketch14.addConstraint(Sketcher.Constraint("DistanceY", 0, 2, 0, 1, Q("72.46 mm")))
sketch14.addConstraint(Sketcher.Constraint("DistanceY", -1, 1, 0, 2, Q("244.92 mm")))
sketch14.setExpression("Constraints[8]", "Params.sketch14_width")
sketch14.setExpression("Constraints[10]", "Params.sketch14_height")
pad14 = doc.addObject("PartDesign::Pad", "Pad013")
body14.addObject(pad14)
pad14.Profile = sketch14
pad14.setExpression("Length", "Params.pad14_length")
body15 = doc.addObject("PartDesign::Body", "Body014")

sketch15 = doc.addObject("Sketcher::SketchObject", "Sketch014")
body15.addObject(sketch15)
sketch15.AttachmentSupport = (doc.getObject("XY_Plane014"), [""])
sketch15.MapMode = "FlatFace"
sketch15.addGeometry(Part.LineSegment(V(92, 644, 0), V(92, 526, 0)), False)
sketch15.addGeometry(Part.LineSegment(V(92, 526, 0), V(183, 526, 0)), False)
sketch15.addGeometry(Part.LineSegment(V(183, 526, 0), V(183, 644, 0)), False)
sketch15.addGeometry(Part.LineSegment(V(183, 644, 0), V(92, 644, 0)), False)
sketch15.addConstraint(Sketcher.Constraint("Coincident", 0, 2, 1, 1))
sketch15.addConstraint(Sketcher.Constraint("Coincident", 1, 2, 2, 1))
sketch15.addConstraint(Sketcher.Constraint("Coincident", 2, 2, 3, 1))
sketch15.addConstraint(Sketcher.Constraint("Coincident", 3, 2, 0, 1))
sketch15.addConstraint(Sketcher.Constraint("Vertical", 0))
sketch15.addConstraint(Sketcher.Constraint("Horizontal", 1))
sketch15.addConstraint(Sketcher.Constraint("Vertical", 2))
sketch15.addConstraint(Sketcher.Constraint("Horizontal", 3))
sketch15.addConstraint(Sketcher.Constraint("DistanceX", 1, 1, 1, 2, Q("91.5 mm")))
sketch15.addConstraint(Sketcher.Constraint("DistanceX", -1, 1, 1, 2, Q("183 mm")))
sketch15.addConstraint(Sketcher.Constraint("DistanceY", 0, 2, 0, 1, Q("117.44 mm")))
sketch15.addConstraint(Sketcher.Constraint("DistanceY", -1, 1, 0, 2, Q("526.2 mm")))
sketch15.setExpression("Constraints[8]", "Params.sketch15_width")
sketch15.setExpression("Constraints[10]", "Params.sketch15_height")
pad15 = doc.addObject("PartDesign::Pad", "Pad014")
body15.addObject(pad15)
pad15.Profile = sketch15
pad15.setExpression("Length", "Params.pad15_length")
body16 = doc.addObject("PartDesign::Body", "Body015")

sketch16 = doc.addObject("Sketcher::SketchObject", "Sketch015")
body16.addObject(sketch16)
sketch16.AttachmentSupport = (doc.getObject("XY_Plane015"), [""])
sketch16.MapMode = "FlatFace"
sketch16.addGeometry(Part.LineSegment(V(92, 899, 0), V(92, 781, 0)), False)
sketch16.addGeometry(Part.LineSegment(V(92, 781, 0), V(183, 781, 0)), False)
sketch16.addGeometry(Part.LineSegment(V(183, 781, 0), V(183, 899, 0)), False)
sketch16.addGeometry(Part.LineSegment(V(183, 899, 0), V(92, 899, 0)), False)
sketch16.addConstraint(Sketcher.Constraint("Coincident", 0, 2, 1, 1))
sketch16.addConstraint(Sketcher.Constraint("Coincident", 1, 2, 2, 1))
sketch16.addConstraint(Sketcher.Constraint("Coincident", 2, 2, 3, 1))
sketch16.addConstraint(Sketcher.Constraint("Coincident", 3, 2, 0, 1))
sketch16.addConstraint(Sketcher.Constraint("Vertical", 0))
sketch16.addConstraint(Sketcher.Constraint("Horizontal", 1))
sketch16.addConstraint(Sketcher.Constraint("Vertical", 2))
sketch16.addConstraint(Sketcher.Constraint("Horizontal", 3))
sketch16.addConstraint(Sketcher.Constraint("DistanceX", 1, 1, 1, 2, Q("91.5 mm")))
sketch16.addConstraint(Sketcher.Constraint("DistanceX", -1, 1, 1, 2, Q("183 mm")))
sketch16.addConstraint(Sketcher.Constraint("DistanceY", 0, 2, 0, 1, Q("117.46 mm")))
sketch16.addConstraint(Sketcher.Constraint("DistanceY", -1, 1, 0, 2, Q("781.08 mm")))
sketch16.setExpression("Constraints[8]", "Params.sketch16_width")
sketch16.setExpression("Constraints[10]", "Params.sketch16_height")
pad16 = doc.addObject("PartDesign::Pad", "Pad015")
body16.addObject(pad16)
pad16.Profile = sketch16
pad16.setExpression("Length", "Params.pad16_length")
body17 = doc.addObject("PartDesign::Body", "Body016")

sketch17 = doc.addObject("Sketcher::SketchObject", "Sketch016")
body17.addObject(sketch17)
sketch17.AttachmentSupport = (doc.getObject("XY_Plane016"), [""])
sketch17.MapMode = "FlatFace"
sketch17.addGeometry(Part.LineSegment(V(113, 245, 0), V(113, 172, 0)), False)
sketch17.addGeometry(Part.LineSegment(V(113, 172, 0), V(813, 172, 0)), False)
sketch17.addGeometry(Part.LineSegment(V(813, 172, 0), V(813, 245, 0)), False)
sketch17.addGeometry(Part.LineSegment(V(813, 245, 0), V(113, 245, 0)), False)
sketch17.addConstraint(Sketcher.Constraint("Coincident", 0, 2, 1, 1))
sketch17.addConstraint(Sketcher.Constraint("Coincident", 1, 2, 2, 1))
sketch17.addConstraint(Sketcher.Constraint("Coincident", 2, 2, 3, 1))
sketch17.addConstraint(Sketcher.Constraint("Coincident", 3, 2, 0, 1))
sketch17.addConstraint(Sketcher.Constraint("Vertical", 0))
sketch17.addConstraint(Sketcher.Constraint("Horizontal", 1))
sketch17.addConstraint(Sketcher.Constraint("Vertical", 2))
sketch17.addConstraint(Sketcher.Constraint("Horizontal", 3))
sketch17.addConstraint(Sketcher.Constraint("DistanceX", 1, 1, 1, 2, Q("700 mm")))
sketch17.addConstraint(Sketcher.Constraint("DistanceX", -1, 1, 0, 2, Q("113 mm")))
sketch17.addConstraint(Sketcher.Constraint("DistanceY", 0, 2, 0, 1, Q("72.46 mm")))
sketch17.addConstraint(Sketcher.Constraint("DistanceY", -1, 1, 0, 2, Q("172.46 mm")))
sketch17.setExpression("Constraints[8]", "Params.sketch17_width")
sketch17.setExpression("Constraints[10]", "Params.sketch17_height")
pad17 = doc.addObject("PartDesign::Pad", "Pad016")
body17.addObject(pad17)
pad17.Profile = sketch17
pad17.setExpression("Length", "Params.pad17_length")
body18 = doc.addObject("PartDesign::Body", "Body017")

sketch18 = doc.addObject("Sketcher::SketchObject", "Sketch017")
body18.addObject(sketch18)
sketch18.AttachmentSupport = (doc.getObject("XY_Plane017"), [""])
sketch18.MapMode = "FlatFace"
sketch18.addGeometry(Part.LineSegment(V(92, 781, 0), V(92, 644, 0)), False)
sketch18.addGeometry(Part.LineSegment(V(92, 644, 0), V(183, 644, 0)), False)
sketch18.addGeometry(Part.LineSegment(V(183, 644, 0), V(183, 781, 0)), False)
sketch18.addGeometry(Part.LineSegment(V(183, 781, 0), V(92, 781, 0)), False)
sketch18.addConstraint(Sketcher.Constraint("Coincident", 0, 2, 1, 1))
sketch18.addConstraint(Sketcher.Constraint("Coincident", 1, 2, 2, 1))
sketch18.addConstraint(Sketcher.Constraint("Coincident", 2, 2, 3, 1))
sketch18.addConstraint(Sketcher.Constraint("Coincident", 3, 2, 0, 1))
sketch18.addConstraint(Sketcher.Constraint("Vertical", 0))
sketch18.addConstraint(Sketcher.Constraint("Horizontal", 1))
sketch18.addConstraint(Sketcher.Constraint("Vertical", 2))
sketch18.addConstraint(Sketcher.Constraint("Horizontal", 3))
sketch18.addConstraint(Sketcher.Constraint("DistanceX", 1, 1, 1, 2, Q("91.5 mm")))
sketch18.addConstraint(Sketcher.Constraint("DistanceX", -1, 1, 1, 2, Q("183 mm")))
sketch18.addConstraint(Sketcher.Constraint("DistanceY", 0, 2, 0, 1, Q("137.44 mm")))
sketch18.addConstraint(Sketcher.Constraint("DistanceY", -1, 1, 0, 2, Q("643.64 mm")))
sketch18.setExpression("Constraints[8]", "Params.sketch18_width")
sketch18.setExpression("Constraints[10]", "Params.sketch18_height")
pad18 = doc.addObject("PartDesign::Pad", "Pad017")
body18.addObject(pad18)
pad18.Profile = sketch18
pad18.setExpression("Length", "Params.pad18_length")
body19 = doc.addObject("PartDesign::Body", "Body018")

sketch19 = doc.addObject("Sketcher::SketchObject", "Sketch018")
body19.addObject(sketch19)
sketch19.AttachmentSupport = (doc.getObject("XY_Plane018"), [""])
sketch19.MapMode = "FlatFace"
sketch19.addGeometry(Part.LineSegment(V(92, 1016, 0), V(92, 899, 0)), False)
sketch19.addGeometry(Part.LineSegment(V(92, 899, 0), V(183, 899, 0)), False)
sketch19.addGeometry(Part.LineSegment(V(183, 899, 0), V(183, 1016, 0)), False)
sketch19.addGeometry(Part.LineSegment(V(183, 1016, 0), V(92, 1016, 0)), False)
sketch19.addConstraint(Sketcher.Constraint("Coincident", 0, 2, 1, 1))
sketch19.addConstraint(Sketcher.Constraint("Coincident", 1, 2, 2, 1))
sketch19.addConstraint(Sketcher.Constraint("Coincident", 2, 2, 3, 1))
sketch19.addConstraint(Sketcher.Constraint("Coincident", 3, 2, 0, 1))
sketch19.addConstraint(Sketcher.Constraint("Vertical", 0))
sketch19.addConstraint(Sketcher.Constraint("Horizontal", 1))
sketch19.addConstraint(Sketcher.Constraint("Vertical", 2))
sketch19.addConstraint(Sketcher.Constraint("Horizontal", 3))
sketch19.addConstraint(Sketcher.Constraint("DistanceX", 1, 1, 1, 2, Q("91.5 mm")))
sketch19.addConstraint(Sketcher.Constraint("DistanceX", -1, 1, 1, 2, Q("183 mm")))
sketch19.addConstraint(Sketcher.Constraint("DistanceY", -1, 1, 2, 2, Q("1016 mm")))
sketch19.addConstraint(Sketcher.Constraint("DistanceY", 0, 2, 0, 1, Q("117.46 mm")))
sketch19.setExpression("Constraints[8]", "Params.sketch19_width")
sketch19.setExpression("Constraints[11]", "Params.sketch19_height")
pad19 = doc.addObject("PartDesign::Pad", "Pad018")
body19.addObject(pad19)
pad19.Profile = sketch19
pad19.setExpression("Length", "Params.pad19_length")
body20 = doc.addObject("PartDesign::Body", "Body019")

sketch20 = doc.addObject("Sketcher::SketchObject", "Sketch019")
body20.addObject(sketch20)
sketch20.AttachmentSupport = (doc.getObject("XY_Plane019"), [""])
sketch20.MapMode = "FlatFace"
sketch20.addGeometry(Part.LineSegment(V(0, 1016, 0), V(0, 0, 0)), False)
sketch20.addGeometry(Part.LineSegment(V(0, 0, 0), V(813, 0, 0)), False)
sketch20.addGeometry(Part.LineSegment(V(813, 0, 0), V(813, 1016, 0)), False)
sketch20.addGeometry(Part.LineSegment(V(813, 1016, 0), V(0, 1016, 0)), False)
sketch20.addConstraint(Sketcher.Constraint("Coincident", 0, 2, 1, 1))
sketch20.addConstraint(Sketcher.Constraint("Coincident", 1, 2, 2, 1))
sketch20.addConstraint(Sketcher.Constraint("Coincident", 2, 2, 3, 1))
sketch20.addConstraint(Sketcher.Constraint("Coincident", 3, 2, 0, 1))
sketch20.addConstraint(Sketcher.Constraint("Vertical", 0))
sketch20.addConstraint(Sketcher.Constraint("Horizontal", 1))
sketch20.addConstraint(Sketcher.Constraint("Vertical", 2))
sketch20.addConstraint(Sketcher.Constraint("Horizontal", 3))
sketch20.addConstraint(Sketcher.Constraint("Coincident", 0, 2, -1, 1))
sketch20.addConstraint(Sketcher.Constraint("DistanceX", 1, 1, 1, 2, Q("813 mm")))
sketch20.addConstraint(Sketcher.Constraint("DistanceY", 0, 2, 0, 1, Q("1016 mm")))
sketch20.setExpression("Constraints[9]", "Params.sketch20_width")
sketch20.setExpression("Constraints[10]", "Params.sketch20_height")
pad20 = doc.addObject("PartDesign::Pad", "Pad019")
body20.addObject(pad20)
pad20.Profile = sketch20
pad20.setExpression("Length", "Params.pad20_length")
pad20.Reversed = True

doc.recompute()
